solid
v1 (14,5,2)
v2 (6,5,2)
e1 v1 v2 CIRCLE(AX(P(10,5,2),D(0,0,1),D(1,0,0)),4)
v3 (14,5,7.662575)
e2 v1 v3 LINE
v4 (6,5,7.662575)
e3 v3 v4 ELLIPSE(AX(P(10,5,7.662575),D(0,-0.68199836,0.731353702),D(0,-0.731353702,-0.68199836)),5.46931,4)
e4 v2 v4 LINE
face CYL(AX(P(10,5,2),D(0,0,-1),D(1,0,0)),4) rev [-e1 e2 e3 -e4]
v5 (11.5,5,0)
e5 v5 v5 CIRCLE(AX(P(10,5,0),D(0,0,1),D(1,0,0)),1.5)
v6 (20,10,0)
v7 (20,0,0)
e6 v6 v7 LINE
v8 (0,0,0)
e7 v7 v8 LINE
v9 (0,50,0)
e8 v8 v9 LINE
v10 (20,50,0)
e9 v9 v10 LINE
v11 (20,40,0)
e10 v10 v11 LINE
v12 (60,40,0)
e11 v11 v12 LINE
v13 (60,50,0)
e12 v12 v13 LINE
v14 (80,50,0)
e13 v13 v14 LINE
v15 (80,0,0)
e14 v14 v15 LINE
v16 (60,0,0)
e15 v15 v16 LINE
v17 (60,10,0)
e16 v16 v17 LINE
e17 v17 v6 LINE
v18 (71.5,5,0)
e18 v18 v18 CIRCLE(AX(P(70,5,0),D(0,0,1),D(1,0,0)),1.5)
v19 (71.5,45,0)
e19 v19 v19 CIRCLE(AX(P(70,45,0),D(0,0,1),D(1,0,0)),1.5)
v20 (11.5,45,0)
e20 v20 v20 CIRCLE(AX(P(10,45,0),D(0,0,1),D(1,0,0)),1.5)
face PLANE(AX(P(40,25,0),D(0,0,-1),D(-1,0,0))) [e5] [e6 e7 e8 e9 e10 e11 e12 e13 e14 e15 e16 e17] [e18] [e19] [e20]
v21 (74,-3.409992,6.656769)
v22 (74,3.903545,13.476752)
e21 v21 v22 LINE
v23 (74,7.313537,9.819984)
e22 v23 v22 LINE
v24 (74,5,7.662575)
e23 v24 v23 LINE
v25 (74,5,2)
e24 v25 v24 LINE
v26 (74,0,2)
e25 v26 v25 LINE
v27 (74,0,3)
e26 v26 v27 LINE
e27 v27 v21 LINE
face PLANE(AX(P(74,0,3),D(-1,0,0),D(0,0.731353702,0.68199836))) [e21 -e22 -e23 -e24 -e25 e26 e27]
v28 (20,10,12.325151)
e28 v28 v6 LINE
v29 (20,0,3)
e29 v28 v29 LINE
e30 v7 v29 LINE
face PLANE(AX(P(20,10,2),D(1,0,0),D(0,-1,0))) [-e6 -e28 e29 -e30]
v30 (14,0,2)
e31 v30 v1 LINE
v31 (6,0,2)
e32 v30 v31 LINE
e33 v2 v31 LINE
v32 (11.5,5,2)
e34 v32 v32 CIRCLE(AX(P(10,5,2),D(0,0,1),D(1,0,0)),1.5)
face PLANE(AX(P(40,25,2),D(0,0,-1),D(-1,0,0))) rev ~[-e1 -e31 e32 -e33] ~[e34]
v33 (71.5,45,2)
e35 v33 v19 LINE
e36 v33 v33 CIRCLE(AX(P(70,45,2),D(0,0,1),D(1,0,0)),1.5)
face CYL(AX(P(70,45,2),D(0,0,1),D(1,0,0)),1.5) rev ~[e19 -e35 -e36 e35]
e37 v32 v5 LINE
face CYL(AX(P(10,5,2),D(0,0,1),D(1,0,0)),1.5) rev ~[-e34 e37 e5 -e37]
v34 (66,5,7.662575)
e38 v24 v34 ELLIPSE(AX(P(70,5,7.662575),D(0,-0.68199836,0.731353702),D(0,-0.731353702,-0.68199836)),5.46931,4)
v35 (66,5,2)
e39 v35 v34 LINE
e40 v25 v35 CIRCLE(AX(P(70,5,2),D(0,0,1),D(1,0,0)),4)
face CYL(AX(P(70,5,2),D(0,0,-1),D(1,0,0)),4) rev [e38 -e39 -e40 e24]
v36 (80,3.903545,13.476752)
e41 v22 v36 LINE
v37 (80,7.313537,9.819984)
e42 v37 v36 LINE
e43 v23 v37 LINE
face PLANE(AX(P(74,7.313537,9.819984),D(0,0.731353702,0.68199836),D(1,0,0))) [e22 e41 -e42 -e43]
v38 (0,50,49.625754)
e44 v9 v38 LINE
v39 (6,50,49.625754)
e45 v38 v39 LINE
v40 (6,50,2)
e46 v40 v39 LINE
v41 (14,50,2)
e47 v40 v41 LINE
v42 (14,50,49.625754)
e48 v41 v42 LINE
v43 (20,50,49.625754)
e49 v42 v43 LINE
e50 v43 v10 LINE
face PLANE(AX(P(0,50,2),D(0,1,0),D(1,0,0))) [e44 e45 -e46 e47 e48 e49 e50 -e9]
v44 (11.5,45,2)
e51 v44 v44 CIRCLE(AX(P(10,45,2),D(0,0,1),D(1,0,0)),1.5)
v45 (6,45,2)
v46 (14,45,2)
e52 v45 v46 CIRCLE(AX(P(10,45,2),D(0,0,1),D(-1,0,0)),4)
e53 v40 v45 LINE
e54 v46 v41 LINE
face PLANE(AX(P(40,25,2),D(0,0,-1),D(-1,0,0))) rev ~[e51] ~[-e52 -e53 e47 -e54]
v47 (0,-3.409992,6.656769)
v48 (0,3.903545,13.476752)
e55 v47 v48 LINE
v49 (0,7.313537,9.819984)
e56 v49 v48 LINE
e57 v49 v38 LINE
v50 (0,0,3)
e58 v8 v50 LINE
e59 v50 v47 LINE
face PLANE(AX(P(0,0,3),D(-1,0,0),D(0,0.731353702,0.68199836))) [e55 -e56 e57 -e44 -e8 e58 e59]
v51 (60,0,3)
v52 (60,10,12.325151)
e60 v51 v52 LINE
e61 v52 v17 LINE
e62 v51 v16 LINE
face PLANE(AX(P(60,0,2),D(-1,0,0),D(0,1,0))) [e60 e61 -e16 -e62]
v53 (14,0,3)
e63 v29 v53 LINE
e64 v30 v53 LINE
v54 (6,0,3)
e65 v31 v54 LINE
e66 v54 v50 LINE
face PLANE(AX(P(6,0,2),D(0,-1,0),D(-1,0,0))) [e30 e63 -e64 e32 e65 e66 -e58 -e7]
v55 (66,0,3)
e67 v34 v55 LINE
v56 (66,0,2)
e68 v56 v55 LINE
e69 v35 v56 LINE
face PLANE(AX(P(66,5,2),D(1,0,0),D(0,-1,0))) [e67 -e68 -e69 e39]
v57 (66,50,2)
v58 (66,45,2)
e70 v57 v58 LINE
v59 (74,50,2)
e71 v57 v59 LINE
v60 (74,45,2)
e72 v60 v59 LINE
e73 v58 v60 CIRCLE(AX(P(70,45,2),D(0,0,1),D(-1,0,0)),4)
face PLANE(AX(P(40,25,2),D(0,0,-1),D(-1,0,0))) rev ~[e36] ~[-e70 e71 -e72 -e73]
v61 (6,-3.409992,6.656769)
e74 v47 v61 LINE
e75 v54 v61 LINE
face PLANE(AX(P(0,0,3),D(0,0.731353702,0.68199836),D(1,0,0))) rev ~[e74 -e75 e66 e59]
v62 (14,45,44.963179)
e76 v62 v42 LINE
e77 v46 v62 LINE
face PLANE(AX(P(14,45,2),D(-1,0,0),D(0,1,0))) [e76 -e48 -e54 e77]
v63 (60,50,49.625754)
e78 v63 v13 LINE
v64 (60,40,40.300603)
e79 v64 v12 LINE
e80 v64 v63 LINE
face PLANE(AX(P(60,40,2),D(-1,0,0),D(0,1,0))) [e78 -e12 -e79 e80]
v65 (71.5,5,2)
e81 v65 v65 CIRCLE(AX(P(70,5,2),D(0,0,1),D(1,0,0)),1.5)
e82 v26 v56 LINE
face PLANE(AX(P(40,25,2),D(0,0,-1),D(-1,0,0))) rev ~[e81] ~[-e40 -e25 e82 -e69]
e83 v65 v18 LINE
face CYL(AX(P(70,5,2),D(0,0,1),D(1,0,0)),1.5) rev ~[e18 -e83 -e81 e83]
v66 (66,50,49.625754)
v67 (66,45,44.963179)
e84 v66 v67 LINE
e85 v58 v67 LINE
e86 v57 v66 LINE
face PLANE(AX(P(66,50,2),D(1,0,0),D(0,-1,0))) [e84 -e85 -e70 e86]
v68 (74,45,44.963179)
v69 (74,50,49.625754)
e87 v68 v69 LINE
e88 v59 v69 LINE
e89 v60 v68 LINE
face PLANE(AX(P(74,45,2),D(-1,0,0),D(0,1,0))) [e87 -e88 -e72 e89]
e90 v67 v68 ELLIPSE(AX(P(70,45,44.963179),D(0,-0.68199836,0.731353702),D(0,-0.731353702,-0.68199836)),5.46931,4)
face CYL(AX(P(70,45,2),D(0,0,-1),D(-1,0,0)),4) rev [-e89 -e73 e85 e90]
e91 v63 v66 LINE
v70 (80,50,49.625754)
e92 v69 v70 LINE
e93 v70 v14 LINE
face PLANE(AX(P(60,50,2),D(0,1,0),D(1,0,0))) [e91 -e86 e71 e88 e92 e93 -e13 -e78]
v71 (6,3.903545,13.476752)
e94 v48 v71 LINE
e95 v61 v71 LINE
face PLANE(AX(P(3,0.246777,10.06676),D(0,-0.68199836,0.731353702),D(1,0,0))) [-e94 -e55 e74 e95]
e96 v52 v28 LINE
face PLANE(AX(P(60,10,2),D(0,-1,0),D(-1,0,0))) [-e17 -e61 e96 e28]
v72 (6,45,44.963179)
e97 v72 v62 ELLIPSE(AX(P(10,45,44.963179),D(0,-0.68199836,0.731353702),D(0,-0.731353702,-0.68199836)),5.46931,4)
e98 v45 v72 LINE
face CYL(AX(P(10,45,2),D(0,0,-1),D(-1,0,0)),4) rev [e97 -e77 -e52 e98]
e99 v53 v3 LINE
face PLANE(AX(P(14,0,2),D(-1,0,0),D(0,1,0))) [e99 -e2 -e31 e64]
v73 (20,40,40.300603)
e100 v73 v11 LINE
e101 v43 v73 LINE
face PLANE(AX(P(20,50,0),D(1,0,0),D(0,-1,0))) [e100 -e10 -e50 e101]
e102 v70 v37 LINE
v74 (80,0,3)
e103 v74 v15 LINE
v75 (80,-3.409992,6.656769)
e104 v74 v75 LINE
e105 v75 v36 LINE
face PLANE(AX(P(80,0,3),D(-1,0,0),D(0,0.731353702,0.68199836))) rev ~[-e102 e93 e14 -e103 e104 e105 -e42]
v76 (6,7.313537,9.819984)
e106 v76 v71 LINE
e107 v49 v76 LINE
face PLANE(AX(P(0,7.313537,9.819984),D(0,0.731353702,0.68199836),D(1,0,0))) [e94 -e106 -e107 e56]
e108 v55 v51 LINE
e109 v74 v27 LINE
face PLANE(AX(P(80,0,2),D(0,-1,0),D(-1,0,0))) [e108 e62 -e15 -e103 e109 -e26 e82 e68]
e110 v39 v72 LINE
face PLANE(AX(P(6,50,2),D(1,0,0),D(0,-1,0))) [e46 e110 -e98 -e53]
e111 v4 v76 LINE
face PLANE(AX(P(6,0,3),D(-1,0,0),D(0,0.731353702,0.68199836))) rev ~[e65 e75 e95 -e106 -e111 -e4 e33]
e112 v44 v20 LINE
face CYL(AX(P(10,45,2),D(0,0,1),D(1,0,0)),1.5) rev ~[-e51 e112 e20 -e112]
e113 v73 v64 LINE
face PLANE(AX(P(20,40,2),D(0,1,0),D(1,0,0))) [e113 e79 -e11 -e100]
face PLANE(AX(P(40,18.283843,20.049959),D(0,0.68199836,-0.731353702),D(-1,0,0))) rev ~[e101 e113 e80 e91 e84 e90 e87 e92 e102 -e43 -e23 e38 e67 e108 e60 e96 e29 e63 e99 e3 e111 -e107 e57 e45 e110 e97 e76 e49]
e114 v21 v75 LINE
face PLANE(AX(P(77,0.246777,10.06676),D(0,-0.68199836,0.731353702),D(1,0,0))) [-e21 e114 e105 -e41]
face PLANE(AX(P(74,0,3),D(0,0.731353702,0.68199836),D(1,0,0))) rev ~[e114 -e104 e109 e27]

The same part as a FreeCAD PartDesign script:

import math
import FreeCAD as App
import Part
import Sketcher
Q = App.Units.Quantity


def faces_at(feature, points):
    """Names of the faces that lie closest to the given points."""
    faces = feature.Shape.Faces
    near = lambda p: min(range(len(faces)), key=lambda i: faces[i].distToShape(Part.Vertex(*p))[0])
    return sorted({f"Face{near(p) + 1}" for p in points})


def add_polygon(sketch, points):
    """Adds a closed chain of lines whose ends are joined by coincident constraints."""
    first, n = sketch.GeometryCount, len(points)
    for a, b in zip(points, points[1:] + points[:1]):
        sketch.addGeometry(Part.LineSegment(App.Vector(*a, 0), App.Vector(*b, 0)), False)
    for i in range(n):
        sketch.addConstraint(Sketcher.Constraint("Coincident", first + i, 2, first + (i + 1) % n, 1))

doc = App.newDocument("Part")
body = doc.addObject("PartDesign::Body", "Body")

sketch1 = doc.addObject("Sketcher::SketchObject", "Sketch")
body.addObject(sketch1)
sketch1.AttachmentSupport = (doc.XY_Plane, [""])
sketch1.MapMode = "FlatFace"
add_polygon(sketch1, [(0, 50), (0, 0), (20, 0), (20, 10), (60, 10), (60, 0), (80, 0), (80, 50), (60, 50), (60, 40), (20, 40), (20, 50)])
sketch1.addConstraint([
    Sketcher.Constraint("Vertical", 0),
    Sketcher.Constraint("Horizontal", 1),
    Sketcher.Constraint("Vertical", 2),
    Sketcher.Constraint("Horizontal", 3),
    Sketcher.Constraint("Vertical", 4),
    Sketcher.Constraint("Horizontal", 5),
    Sketcher.Constraint("Vertical", 6),
    Sketcher.Constraint("Horizontal", 7),
    Sketcher.Constraint("Vertical", 8),
    Sketcher.Constraint("Horizontal", 9),
    Sketcher.Constraint("Vertical", 10),
    Sketcher.Constraint("Horizontal", 11),
    Sketcher.Constraint("Coincident", 0, 2, -1, 1),
    Sketcher.Constraint("PointOnObject", 4, 2, -1),
    Sketcher.Constraint("Horizontal", 7, 2, 10, 2),
    Sketcher.Constraint("Vertical", 4, 2, 7, 2),
    Sketcher.Constraint("Vertical", 2, 2, 9, 2),
    Sketcher.Constraint("Equal", 1, 5),
    Sketcher.Constraint("Equal", 4, 8),
    Sketcher.Constraint("DistanceX", 1, 1, 1, 2, Q("20 mm")),
    Sketcher.Constraint("DistanceX", 3, 1, 3, 2, Q("40 mm")),
    Sketcher.Constraint("DistanceY", 0, 2, 0, 1, Q("50 mm")),
    Sketcher.Constraint("DistanceY", 2, 1, 2, 2, Q("10 mm")),
])
pad1 = doc.addObject("PartDesign::Pad", "Pad")
body.addObject(pad1)
pad1.Profile = sketch1
pad1.Length = 2

sketch2 = doc.addObject("Sketcher::SketchObject", "Sketch001")
body.addObject(sketch2)
sketch2.AttachmentSupport = (doc.XY_Plane, [""])
sketch2.MapMode = "FlatFace"
sketch2.AttachmentOffset = App.Placement(App.Vector(0, 0, 2), App.Rotation())
sketch2.addGeometry([
    Part.Circle(App.Vector(10, 45, 0), App.Vector(0, 0, 1), 1.5),
    Part.Circle(App.Vector(10, 5, 0), App.Vector(0, 0, 1), 1.5),
    Part.Circle(App.Vector(70, 45, 0), App.Vector(0, 0, 1), 1.5),
    Part.Circle(App.Vector(70, 5, 0), App.Vector(0, 0, 1), 1.5),
], False)
sketch2.addConstraint([
    Sketcher.Constraint("Equal", 0, 1),
    Sketcher.Constraint("Equal", 1, 2),
    Sketcher.Constraint("Equal", 2, 3),
    Sketcher.Constraint("Horizontal", 0, 3, 2, 3),
    Sketcher.Constraint("Horizontal", 1, 3, 3, 3),
    Sketcher.Constraint("Vertical", 0, 3, 1, 3),
    Sketcher.Constraint("Vertical", 2, 3, 3, 3),
    Sketcher.Constraint("Diameter", 0, Q("3 mm")),
    Sketcher.Constraint("DistanceX", -1, 1, 0, 3, Q("10 mm")),
    Sketcher.Constraint("DistanceY", -1, 1, 0, 3, Q("45 mm")),
    Sketcher.Constraint("DistanceY", -1, 1, 1, 3, Q("5 mm")),
    Sketcher.Constraint("DistanceX", -1, 1, 2, 3, Q("70 mm")),
])
pocket1 = doc.addObject("PartDesign::Pocket", "Pocket")
body.addObject(pocket1)
pocket1.Profile = sketch2
pocket1.Type = "ThroughAll"

sketch3 = doc.addObject("Sketcher::SketchObject", "Sketch002")
body.addObject(sketch3)
sketch3.AttachmentSupport = (doc.XY_Plane, [""])
sketch3.MapMode = "FlatFace"
sketch3.AttachmentOffset = App.Placement(App.Vector(0, 0, 2), App.Rotation())
sketch3.addGeometry([
    Part.LineSegment(App.Vector(6, 50, 0), App.Vector(0, 50, 0)),
    Part.LineSegment(App.Vector(0, 50, 0), App.Vector(0, 0, 0)),
    Part.LineSegment(App.Vector(0, 0, 0), App.Vector(6, 0, 0)),
    Part.LineSegment(App.Vector(6, 0, 0), App.Vector(6, 5, 0)),
    Part.ArcOfCircle(Part.Circle(App.Vector(10, 5, 0), App.Vector(0, 0, 1), 4), math.radians(0), math.radians(180)),
    Part.LineSegment(App.Vector(14, 5, 0), App.Vector(14, 0, 0)),
    Part.LineSegment(App.Vector(14, 0, 0), App.Vector(20, 0, 0)),
    Part.LineSegment(App.Vector(20, 0, 0), App.Vector(20, 10, 0)),
    Part.LineSegment(App.Vector(20, 10, 0), App.Vector(60, 10, 0)),
    Part.LineSegment(App.Vector(60, 10, 0), App.Vector(60, 0, 0)),
    Part.LineSegment(App.Vector(60, 0, 0), App.Vector(66, 0, 0)),
    Part.LineSegment(App.Vector(66, 0, 0), App.Vector(66, 5, 0)),
    Part.ArcOfCircle(Part.Circle(App.Vector(70, 5, 0), App.Vector(0, 0, 1), 4), math.radians(0), math.radians(180)),
    Part.LineSegment(App.Vector(74, 5, 0), App.Vector(74, 0, 0)),
    Part.LineSegment(App.Vector(74, 0, 0), App.Vector(80, 0, 0)),
    Part.LineSegment(App.Vector(80, 0, 0), App.Vector(80, 50, 0)),
    Part.LineSegment(App.Vector(80, 50, 0), App.Vector(74, 50, 0)),
    Part.LineSegment(App.Vector(74, 50, 0), App.Vector(74, 45, 0)),
    Part.ArcOfCircle(Part.Circle(App.Vector(70, 45, 0), App.Vector(0, 0, 1), 4), math.radians(180), math.radians(360)),
    Part.LineSegment(App.Vector(66, 45, 0), App.Vector(66, 50, 0)),
    Part.LineSegment(App.Vector(66, 50, 0), App.Vector(60, 50, 0)),
    Part.LineSegment(App.Vector(60, 50, 0), App.Vector(60, 40, 0)),
    Part.LineSegment(App.Vector(60, 40, 0), App.Vector(20, 40, 0)),
    Part.LineSegment(App.Vector(20, 40, 0), App.Vector(20, 50, 0)),
    Part.LineSegment(App.Vector(20, 50, 0), App.Vector(14, 50, 0)),
    Part.LineSegment(App.Vector(14, 50, 0), App.Vector(14, 45, 0)),
    Part.ArcOfCircle(Part.Circle(App.Vector(10, 45, 0), App.Vector(0, 0, 1), 4), math.radians(180), math.radians(360)),
    Part.LineSegment(App.Vector(6, 45, 0), App.Vector(6, 50, 0)),
], False)
sketch3.addConstraint([
    Sketcher.Constraint("Coincident", 0, 2, 1, 1),
    Sketcher.Constraint("Coincident", 1, 2, 2, 1),
    Sketcher.Constraint("Coincident", 2, 2, 3, 1),
    Sketcher.Constraint("Tangent", 3, 2, 4, 2),
    Sketcher.Constraint("Tangent", 4, 1, 5, 1),
    Sketcher.Constraint("Coincident", 5, 2, 6, 1),
    Sketcher.Constraint("Coincident", 6, 2, 7, 1),
    Sketcher.Constraint("Coincident", 7, 2, 8, 1),
    Sketcher.Constraint("Coincident", 8, 2, 9, 1),
    Sketcher.Constraint("Coincident", 9, 2, 10, 1),
    Sketcher.Constraint("Coincident", 10, 2, 11, 1),
    Sketcher.Constraint("Tangent", 11, 2, 12, 2),
    Sketcher.Constraint("Tangent", 12, 1, 13, 1),
    Sketcher.Constraint("Coincident", 13, 2, 14, 1),
    Sketcher.Constraint("Coincident", 14, 2, 15, 1),
    Sketcher.Constraint("Coincident", 15, 2, 16, 1),
    Sketcher.Constraint("Coincident", 16, 2, 17, 1),
    Sketcher.Constraint("Tangent", 17, 2, 18, 2),
    Sketcher.Constraint("Tangent", 18, 1, 19, 1),
    Sketcher.Constraint("Coincident", 19, 2, 20, 1),
    Sketcher.Constraint("Coincident", 20, 2, 21, 1),
    Sketcher.Constraint("Coincident", 21, 2, 22, 1),
    Sketcher.Constraint("Coincident", 22, 2, 23, 1),
    Sketcher.Constraint("Coincident", 23, 2, 24, 1),
    Sketcher.Constraint("Coincident", 24, 2, 25, 1),
    Sketcher.Constraint("Tangent", 25, 2, 26, 2),
    Sketcher.Constraint("Tangent", 26, 1, 27, 1),
    Sketcher.Constraint("Coincident", 27, 2, 0, 1),
    Sketcher.Constraint("Horizontal", 0),
    Sketcher.Constraint("Vertical", 1),
    Sketcher.Constraint("Horizontal", 2),
    Sketcher.Constraint("Vertical", 3),
    Sketcher.Constraint("Vertical", 5),
    Sketcher.Constraint("Horizontal", 6),
    Sketcher.Constraint("Vertical", 7),
    Sketcher.Constraint("Horizontal", 8),
    Sketcher.Constraint("Vertical", 9),
    Sketcher.Constraint("Horizontal", 10),
    Sketcher.Constraint("Vertical", 11),
    Sketcher.Constraint("Vertical", 13),
    Sketcher.Constraint("Horizontal", 14),
    Sketcher.Constraint("Vertical", 15),
    Sketcher.Constraint("Horizontal", 16),
    Sketcher.Constraint("Vertical", 17),
    Sketcher.Constraint("Vertical", 19),
    Sketcher.Constraint("Horizontal", 20),
    Sketcher.Constraint("Vertical", 21),
    Sketcher.Constraint("Horizontal", 22),
    Sketcher.Constraint("Vertical", 23),
    Sketcher.Constraint("Horizontal", 24),
    Sketcher.Constraint("Vertical", 25),
    Sketcher.Constraint("Vertical", 27),
    Sketcher.Constraint("Coincident", 1, 2, -1, 1),
    Sketcher.Constraint("Equal", 4, 12),
    Sketcher.Constraint("Equal", 12, 18),
    Sketcher.Constraint("Equal", 18, 26),
    Sketcher.Constraint("PointOnObject", 5, 2, -1),
    Sketcher.Constraint("PointOnObject", 9, 2, -1),
    Sketcher.Constraint("PointOnObject", 13, 2, -1),
    Sketcher.Constraint("Horizontal", 4, 3, 12, 3),
    Sketcher.Constraint("Horizontal", 18, 3, 26, 3),
    Sketcher.Constraint("Horizontal", 0, 2, 15, 2),
    Sketcher.Constraint("Horizontal", 16, 2, 19, 2),
    Sketcher.Constraint("Horizontal", 20, 2, 23, 2),
    Sketcher.Constraint("Vertical", 12, 3, 18, 3),
    Sketcher.Constraint("Vertical", 4, 3, 26, 3),
    Sketcher.Constraint("Vertical", 9, 2, 20, 2),
    Sketcher.Constraint("Vertical", 7, 2, 22, 2),
    Sketcher.Constraint("Equal", 2, 6),
    Sketcher.Constraint("Equal", 6, 10),
    Sketcher.Constraint("Equal", 10, 14),
    Sketcher.Constraint("Equal", 13, 17),
    Sketcher.Constraint("Equal", 9, 21),
    Sketcher.Constraint("Radius", 4, Q("4 mm")),
    Sketcher.Constraint("DistanceX", 0, 2, 0, 1, Q("6 mm")),
    Sketcher.Constraint("DistanceX", 8, 1, 8, 2, Q("40 mm")),
    Sketcher.Constraint("DistanceY", 1, 2, 1, 1, Q("50 mm")),
    Sketcher.Constraint("DistanceY", 3, 1, 3, 2, Q("5 mm")),
    Sketcher.Constraint("DistanceY", 7, 1, 7, 2, Q("10 mm")),
])
pad2 = doc.addObject("PartDesign::Pad", "Pad001")
body.addObject(pad2)
pad2.Profile = sketch3
pad2.Length = 1
doc.recompute()

draft = doc.addObject("PartDesign::Draft", "Draft")
body.addObject(draft)
draft.Base = (pad2, faces_at(pad2, [(40, 25, 3)]))
draft.NeutralPlane = (doc.XZ_Plane, [""])
draft.Angle = 43
draft.Reversed = False

sketch4 = doc.addObject("Sketcher::SketchObject", "Sketch003")
body.addObject(sketch4)
sketch4.Placement = App.Placement(App.Vector(0, -1.496346, 1.604635), App.Rotation(App.Vector(1, 0, 0), App.Vector(0, 0.731353702, 0.68199836), App.Vector(0, -0.68199836, 0.731353702), "ZXY"))
add_polygon(sketch4, [(0, 12.045995), (0, 2.045995), (6, 2.045995), (6, 12.045995)])
sketch4.addConstraint([
    Sketcher.Constraint("Vertical", 0),
    Sketcher.Constraint("Horizontal", 1),
    Sketcher.Constraint("Vertical", 2),
    Sketcher.Constraint("Horizontal", 3),
    Sketcher.Constraint("PointOnObject", 0, 2, -2),
    Sketcher.Constraint("DistanceX", 1, 1, 1, 2, Q("6 mm")),
    Sketcher.Constraint("DistanceY", 0, 2, 0, 1, Q("10 mm")),
    Sketcher.Constraint("DistanceY", -1, 1, 0, 2, Q("2.045995 mm")),
])
pad3 = doc.addObject("PartDesign::Pad", "Pad002")
body.addObject(pad3)
pad3.Profile = sketch4
pad3.Length = 5

sketch5 = doc.addObject("Sketcher::SketchObject", "Sketch004")
body.addObject(sketch5)
sketch5.Placement = App.Placement(App.Vector(0, -1.496346, 1.604635), App.Rotation(App.Vector(1, 0, 0), App.Vector(0, 0.731353702, 0.68199836), App.Vector(0, -0.68199836, 0.731353702), "ZXY"))
add_polygon(sketch5, [(74, 12.045995), (74, 2.045995), (80, 2.045995), (80, 12.045995)])
sketch5.addConstraint([
    Sketcher.Constraint("Vertical", 0),
    Sketcher.Constraint("Horizontal", 1),
    Sketcher.Constraint("Vertical", 2),
    Sketcher.Constraint("Horizontal", 3),
    Sketcher.Constraint("DistanceX", 1, 1, 1, 2, Q("6 mm")),
    Sketcher.Constraint("DistanceY", 0, 2, 0, 1, Q("10 mm")),
    Sketcher.Constraint("DistanceX", -1, 1, 0, 2, Q("74 mm")),
    Sketcher.Constraint("DistanceY", -1, 1, 0, 2, Q("2.045995 mm")),
])
pad4 = doc.addObject("PartDesign::Pad", "Pad003")
body.addObject(pad4)
pad4.Profile = sketch5
pad4.Length = 5

doc.recompute()
